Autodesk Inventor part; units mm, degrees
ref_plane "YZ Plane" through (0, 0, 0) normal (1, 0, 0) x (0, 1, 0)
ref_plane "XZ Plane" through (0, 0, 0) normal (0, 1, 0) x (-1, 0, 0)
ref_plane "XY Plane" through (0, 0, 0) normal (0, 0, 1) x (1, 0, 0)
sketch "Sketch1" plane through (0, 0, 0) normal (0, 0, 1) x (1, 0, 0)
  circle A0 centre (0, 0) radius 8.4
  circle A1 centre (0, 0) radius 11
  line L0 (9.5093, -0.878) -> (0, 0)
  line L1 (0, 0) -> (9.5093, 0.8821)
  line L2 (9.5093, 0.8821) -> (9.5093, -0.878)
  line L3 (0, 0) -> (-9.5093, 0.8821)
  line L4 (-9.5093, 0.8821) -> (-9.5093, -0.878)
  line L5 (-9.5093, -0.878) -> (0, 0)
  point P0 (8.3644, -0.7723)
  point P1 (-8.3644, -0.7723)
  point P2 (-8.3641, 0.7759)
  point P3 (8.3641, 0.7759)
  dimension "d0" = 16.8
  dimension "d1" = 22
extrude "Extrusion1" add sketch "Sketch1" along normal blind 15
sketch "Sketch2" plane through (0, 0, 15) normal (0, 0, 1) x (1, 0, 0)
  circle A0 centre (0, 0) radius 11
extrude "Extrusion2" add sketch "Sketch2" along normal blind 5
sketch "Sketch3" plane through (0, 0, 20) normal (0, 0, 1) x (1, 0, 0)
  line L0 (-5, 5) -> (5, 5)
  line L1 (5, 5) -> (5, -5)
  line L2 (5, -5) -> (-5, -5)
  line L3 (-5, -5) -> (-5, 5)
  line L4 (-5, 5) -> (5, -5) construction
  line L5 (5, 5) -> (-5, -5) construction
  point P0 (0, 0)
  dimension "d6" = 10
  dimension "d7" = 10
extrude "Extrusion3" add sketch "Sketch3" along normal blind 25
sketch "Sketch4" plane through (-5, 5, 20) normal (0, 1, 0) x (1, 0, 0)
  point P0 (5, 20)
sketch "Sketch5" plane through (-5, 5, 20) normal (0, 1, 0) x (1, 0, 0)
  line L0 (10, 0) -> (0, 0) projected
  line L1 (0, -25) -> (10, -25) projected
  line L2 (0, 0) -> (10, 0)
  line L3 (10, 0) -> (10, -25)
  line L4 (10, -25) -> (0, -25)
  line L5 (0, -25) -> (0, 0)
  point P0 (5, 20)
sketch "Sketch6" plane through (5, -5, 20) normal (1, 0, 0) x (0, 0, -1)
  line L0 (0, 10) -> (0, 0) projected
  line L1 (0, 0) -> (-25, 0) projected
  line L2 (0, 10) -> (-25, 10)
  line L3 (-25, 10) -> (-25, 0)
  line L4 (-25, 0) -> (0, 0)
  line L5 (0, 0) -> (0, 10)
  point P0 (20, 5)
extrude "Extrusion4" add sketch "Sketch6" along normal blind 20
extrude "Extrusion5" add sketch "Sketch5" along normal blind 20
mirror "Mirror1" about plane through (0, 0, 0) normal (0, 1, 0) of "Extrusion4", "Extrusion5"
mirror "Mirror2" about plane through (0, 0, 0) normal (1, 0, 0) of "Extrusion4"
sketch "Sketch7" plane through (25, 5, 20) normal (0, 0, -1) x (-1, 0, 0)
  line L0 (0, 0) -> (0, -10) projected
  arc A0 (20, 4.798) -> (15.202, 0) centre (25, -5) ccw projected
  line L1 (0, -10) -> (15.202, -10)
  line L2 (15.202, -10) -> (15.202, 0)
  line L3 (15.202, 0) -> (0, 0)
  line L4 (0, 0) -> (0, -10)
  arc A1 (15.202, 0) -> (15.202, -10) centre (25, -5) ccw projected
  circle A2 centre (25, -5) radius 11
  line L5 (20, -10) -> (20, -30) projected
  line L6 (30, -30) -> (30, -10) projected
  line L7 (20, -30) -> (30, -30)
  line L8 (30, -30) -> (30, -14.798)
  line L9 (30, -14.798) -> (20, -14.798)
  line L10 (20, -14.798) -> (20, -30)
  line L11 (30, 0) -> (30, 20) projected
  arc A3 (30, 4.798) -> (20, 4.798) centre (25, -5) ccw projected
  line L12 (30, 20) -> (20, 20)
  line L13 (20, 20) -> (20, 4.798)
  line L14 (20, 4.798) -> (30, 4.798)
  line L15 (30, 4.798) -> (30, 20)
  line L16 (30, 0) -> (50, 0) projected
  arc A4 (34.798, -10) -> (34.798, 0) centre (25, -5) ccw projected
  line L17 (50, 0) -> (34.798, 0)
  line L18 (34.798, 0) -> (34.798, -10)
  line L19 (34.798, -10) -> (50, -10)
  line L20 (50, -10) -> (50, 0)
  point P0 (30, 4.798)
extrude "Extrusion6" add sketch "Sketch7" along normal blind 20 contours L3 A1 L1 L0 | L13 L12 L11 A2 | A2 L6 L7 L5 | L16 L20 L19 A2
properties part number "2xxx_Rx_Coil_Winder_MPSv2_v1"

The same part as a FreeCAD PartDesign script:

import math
import FreeCAD as App
import Part
import Sketcher
Q = App.Units.Quantity


def add_polygon(sketch, points):
    """Adds a closed chain of lines whose ends are joined by coincident constraints."""
    first, n = sketch.GeometryCount, len(points)
    for a, b in zip(points, points[1:] + points[:1]):
        sketch.addGeometry(Part.LineSegment(App.Vector(*a, 0), App.Vector(*b, 0)), False)
    for i in range(n):
        sketch.addConstraint(Sketcher.Constraint("Coincident", first + i, 2, first + (i + 1) % n, 1))

doc = App.newDocument("Part")
body = doc.addObject("PartDesign::Body", "Body")

sketch1 = body.newObject("Sketcher::SketchObject", "Sketch")
sketch1.AttachmentSupport = (doc.getObject("XY_Plane"), [""])
sketch1.MapMode = "FlatFace"
sketch1.addGeometry(Part.Circle(App.Vector(0, 0, 0), App.Vector(0, 0, 1), 11), False)
sketch1.addGeometry(Part.ArcOfCircle(Part.Circle(App.Vector(0, 0, 0), App.Vector(0, 0, 1), 8.4), math.radians(5.299695), math.radians(174.700305)), False)
sketch1.addGeometry(Part.LineSegment(App.Vector(8.364092, 0.775868, 0), App.Vector(9.5093, 0.8821, 0)), False)
sketch1.addGeometry(Part.LineSegment(App.Vector(9.5093, 0.8821, 0), App.Vector(9.5093, -0.878, 0)), False)
sketch1.addGeometry(Part.LineSegment(App.Vector(9.5093, -0.878, 0), App.Vector(8.364423, -0.772293, 0)), False)
sketch1.addGeometry(Part.ArcOfCircle(Part.Circle(App.Vector(0, 0, 0), App.Vector(0, 0, 1), 8.4), math.radians(-174.724799), math.radians(-5.275201)), False)
sketch1.addGeometry(Part.LineSegment(App.Vector(-8.364423, -0.772293, 0), App.Vector(-9.5093, -0.878, 0)), False)
sketch1.addGeometry(Part.LineSegment(App.Vector(-9.5093, -0.878, 0), App.Vector(-9.5093, 0.8821, 0)), False)
sketch1.addGeometry(Part.LineSegment(App.Vector(-9.5093, 0.8821, 0), App.Vector(-8.364092, 0.775868, 0)), False)
sketch1.addConstraint(Sketcher.Constraint("Coincident", 1, 1, 2, 1))
sketch1.addConstraint(Sketcher.Constraint("Coincident", 2, 2, 3, 1))
sketch1.addConstraint(Sketcher.Constraint("Coincident", 3, 2, 4, 1))
sketch1.addConstraint(Sketcher.Constraint("Coincident", 4, 2, 5, 2))
sketch1.addConstraint(Sketcher.Constraint("Coincident", 5, 1, 6, 1))
sketch1.addConstraint(Sketcher.Constraint("Coincident", 6, 2, 7, 1))
sketch1.addConstraint(Sketcher.Constraint("Coincident", 7, 2, 8, 1))
sketch1.addConstraint(Sketcher.Constraint("Coincident", 8, 2, 1, 2))
sketch1.addConstraint(Sketcher.Constraint("Vertical", 3))
sketch1.addConstraint(Sketcher.Constraint("Vertical", 7))
sketch1.addConstraint(Sketcher.Constraint("Coincident", 0, 3, -1, 1))
sketch1.addConstraint(Sketcher.Constraint("Coincident", 1, 3, -1, 1))
sketch1.addConstraint(Sketcher.Constraint("Coincident", 5, 3, -1, 1))
sketch1.addConstraint(Sketcher.Constraint("Diameter", 0, Q("22 mm")))
sketch1.addConstraint(Sketcher.Constraint("Radius", 1, Q("8.4 mm")))
sketch1.addConstraint(Sketcher.Constraint("Radius", 5, Q("8.4 mm")))
sketch1.addConstraint(Sketcher.Constraint("DistanceY", 3, 2, 3, 1, Q("1.76 mm")))
sketch1.addConstraint(Sketcher.Constraint("DistanceY", 7, 1, 7, 2, Q("1.76 mm")))
sketch1.addConstraint(Sketcher.Constraint("DistanceX", -1, 1, 1, 1, Q("8.364 mm")))
sketch1.addConstraint(Sketcher.Constraint("DistanceY", -1, 1, 2, 2, Q("0.882 mm")))
sketch1.addConstraint(Sketcher.Constraint("DistanceY", 6, 2, -1, 1, Q("0.878 mm")))
sketch1.addConstraint(Sketcher.Constraint("DistanceX", 8, 2, -1, 1, Q("8.364 mm")))
sketch1.addConstraint(Sketcher.Constraint("Distance", 2, Q("1.1501 mm")))
sketch1.addConstraint(Sketcher.Constraint("Distance", 6, Q("1.1497 mm")))
sketch1.addConstraint(Sketcher.Constraint("DistanceX", -1, 1, 4, 2, Q("8.3644 mm")))
sketch1.addConstraint(Sketcher.Constraint("DistanceX", 5, 1, -1, 1, Q("8.3644 mm")))
pad1 = body.newObject("PartDesign::Pad", "Pad")
pad1.Profile = sketch1
pad1.Length = 15

sketch2 = body.newObject("Sketcher::SketchObject", "Sketch001")
sketch2.AttachmentSupport = (doc.getObject("XY_Plane"), [""])
sketch2.MapMode = "FlatFace"
sketch2.AttachmentOffset = App.Placement(App.Vector(0, 0, 15), App.Rotation())
sketch2.addGeometry(Part.Circle(App.Vector(0, 0, 0), App.Vector(0, 0, 1), 11), False)
sketch2.addConstraint(Sketcher.Constraint("Coincident", 0, 3, -1, 1))
sketch2.addConstraint(Sketcher.Constraint("Diameter", 0, Q("22 mm")))
pad2 = body.newObject("PartDesign::Pad", "Pad001")
pad2.Profile = sketch2
pad2.Length = 5

sketch3 = body.newObject("Sketcher::SketchObject", "Sketch002")
sketch3.AttachmentSupport = (doc.getObject("XY_Plane"), [""])
sketch3.MapMode = "FlatFace"
sketch3.AttachmentOffset = App.Placement(App.Vector(0, 0, 20), App.Rotation())
add_polygon(sketch3, [(5, 5), (-5, 5), (-5, -5), (5, -5)])
sketch3.addConstraint(Sketcher.Constraint("Horizontal", 0))
sketch3.addConstraint(Sketcher.Constraint("Vertical", 1))
sketch3.addConstraint(Sketcher.Constraint("Horizontal", 2))
sketch3.addConstraint(Sketcher.Constraint("Vertical", 3))
sketch3.addConstraint(Sketcher.Constraint("Symmetric", 0, 2, 2, 2, -1, 1))
sketch3.addConstraint(Sketcher.Constraint("Equal", 2, 1))
sketch3.addConstraint(Sketcher.Constraint("DistanceX", 0, 2, 0, 1, Q("10 mm")))
pad3 = body.newObject("PartDesign::Pad", "Pad002")
pad3.Profile = sketch3
pad3.Length = 25

sketch4 = body.newObject("Sketcher::SketchObject", "Sketch003")
sketch4.AttachmentSupport = (doc.getObject("YZ_Plane"), [""])
sketch4.MapMode = "FlatFace"
sketch4.AttachmentOffset = App.Placement(App.Vector(0, 0, 5), App.Rotation())
add_polygon(sketch4, [(-5, 20), (5, 20), (5, 45), (-5, 45)])
sketch4.addConstraint(Sketcher.Constraint("Horizontal", 0))
sketch4.addConstraint(Sketcher.Constraint("Vertical", 1))
sketch4.addConstraint(Sketcher.Constraint("Horizontal", 2))
sketch4.addConstraint(Sketcher.Constraint("Vertical", 3))
sketch4.addConstraint(Sketcher.Constraint("DistanceX", 0, 1, 0, 2, Q("10 mm")))
sketch4.addConstraint(Sketcher.Constraint("DistanceY", 1, 1, 1, 2, Q("25 mm")))
sketch4.addConstraint(Sketcher.Constraint("DistanceX", -1, 1, 0, 2, Q("5 mm")))
sketch4.addConstraint(Sketcher.Constraint("DistanceY", -1, 1, 0, 2, Q("20 mm")))
pad4 = body.newObject("PartDesign::Pad", "Pad003")
pad4.Profile = sketch4
pad4.Length = 20

sketch5 = body.newObject("Sketcher::SketchObject", "Sketch004")
sketch5.AttachmentSupport = (doc.getObject("XZ_Plane"), [""])
sketch5.MapMode = "FlatFace"
sketch5.AttachmentOffset = App.Placement(App.Vector(0, 0, -5), App.Rotation())
add_polygon(sketch5, [(5, 45), (5, 20), (-5, 20), (-5, 45)])
sketch5.addConstraint(Sketcher.Constraint("Vertical", 0))
sketch5.addConstraint(Sketcher.Constraint("Horizontal", 1))
sketch5.addConstraint(Sketcher.Constraint("Vertical", 2))
sketch5.addConstraint(Sketcher.Constraint("Horizontal", 3))
sketch5.addConstraint(Sketcher.Constraint("DistanceX", 1, 2, 1, 1, Q("10 mm")))
sketch5.addConstraint(Sketcher.Constraint("DistanceY", 0, 2, 0, 1, Q("25 mm")))
sketch5.addConstraint(Sketcher.Constraint("DistanceX", -1, 1, 0, 2, Q("5 mm")))
sketch5.addConstraint(Sketcher.Constraint("DistanceY", -1, 1, 0, 2, Q("20 mm")))
pad5 = body.newObject("PartDesign::Pad", "Pad004")
pad5.Profile = sketch5
pad5.Length = 20
pad5.Reversed = True
doc.recompute()

mirrored = body.newObject("PartDesign::Mirrored", "Mirrored")
mirrored.Originals = [pad4, pad5]
mirrored.MirrorPlane = (doc.getObject("XZ_Plane"), [""])
body.Tip = mirrored
doc.recompute()

mirrored2 = body.newObject("PartDesign::Mirrored", "Mirrored001")
mirrored2.Originals = [pad4]
mirrored2.MirrorPlane = (doc.getObject("YZ_Plane"), [""])
body.Tip = mirrored2

sketch6 = body.newObject("Sketcher::SketchObject", "Sketch005")
sketch6.AttachmentSupport = (doc.getObject("XY_Plane"), [""])
sketch6.MapMode = "FlatFace"
sketch6.AttachmentOffset = App.Placement(App.Vector(0, 0, 20), App.Rotation())
sketch6.addGeometry(Part.LineSegment(App.Vector(10, 5, 0), App.Vector(25, 5, 0)), False)
sketch6.addGeometry(Part.LineSegment(App.Vector(25, 5, 0), App.Vector(25, -5, 0)), False)
sketch6.addGeometry(Part.LineSegment(App.Vector(25, -5, 0), App.Vector(10, -5, 0)), False)
sketch6.addGeometry(Part.ArcOfCircle(Part.Circle(App.Vector(0, 0, 0), App.Vector(0, 0, 1), 11), math.radians(-27), math.radians(27)), False)
sketch6.addGeometry(Part.LineSegment(App.Vector(5, 25, 0), App.Vector(5, 10, 0)), False)
sketch6.addGeometry(Part.ArcOfCircle(Part.Circle(App.Vector(0, 0, 0), App.Vector(0, 0, 1), 11), math.radians(63), math.radians(117)), False)
sketch6.addGeometry(Part.LineSegment(App.Vector(-5, 10, 0), App.Vector(-5, 25, 0)), False)
sketch6.addGeometry(Part.LineSegment(App.Vector(-5, 25, 0), App.Vector(5, 25, 0)), False)
sketch6.addGeometry(Part.ArcOfCircle(Part.Circle(App.Vector(0, 0, 0), App.Vector(0, 0, 1), 11), math.radians(-117), math.radians(-63)), False)
sketch6.addGeometry(Part.LineSegment(App.Vector(5, -10, 0), App.Vector(5, -25, 0)), False)
sketch6.addGeometry(Part.LineSegment(App.Vector(5, -25, 0), App.Vector(-5, -25, 0)), False)
sketch6.addGeometry(Part.LineSegment(App.Vector(-5, -25, 0), App.Vector(-5, -10, 0)), False)
sketch6.addGeometry(Part.LineSegment(App.Vector(-25, 5, 0), App.Vector(-10, 5, 0)), False)
sketch6.addGeometry(Part.ArcOfCircle(Part.Circle(App.Vector(0, 0, 0), App.Vector(0, 0, 1), 11), math.radians(153), math.radians(207)), False)
sketch6.addGeometry(Part.LineSegment(App.Vector(-10, -5, 0), App.Vector(-25, -5, 0)), False)
sketch6.addGeometry(Part.LineSegment(App.Vector(-25, -5, 0), App.Vector(-25, 5, 0)), False)
sketch6.addConstraint(Sketcher.Constraint("Coincident", 0, 2, 1, 1))
sketch6.addConstraint(Sketcher.Constraint("Coincident", 1, 2, 2, 1))
sketch6.addConstraint(Sketcher.Constraint("Coincident", 2, 2, 3, 1))
sketch6.addConstraint(Sketcher.Constraint("Coincident", 3, 2, 0, 1))
sketch6.addConstraint(Sketcher.Constraint("Coincident", 4, 2, 5, 1))
sketch6.addConstraint(Sketcher.Constraint("Coincident", 5, 2, 6, 1))
sketch6.addConstraint(Sketcher.Constraint("Coincident", 6, 2, 7, 1))
sketch6.addConstraint(Sketcher.Constraint("Coincident", 7, 2, 4, 1))
sketch6.addConstraint(Sketcher.Constraint("Coincident", 8, 2, 9, 1))
sketch6.addConstraint(Sketcher.Constraint("Coincident", 9, 2, 10, 1))
sketch6.addConstraint(Sketcher.Constraint("Coincident", 10, 2, 11, 1))
sketch6.addConstraint(Sketcher.Constraint("Coincident", 11, 2, 8, 1))
sketch6.addConstraint(Sketcher.Constraint("Coincident", 12, 2, 13, 1))
sketch6.addConstraint(Sketcher.Constraint("Coincident", 13, 2, 14, 1))
sketch6.addConstraint(Sketcher.Constraint("Coincident", 14, 2, 15, 1))
sketch6.addConstraint(Sketcher.Constraint("Coincident", 15, 2, 12, 1))
sketch6.addConstraint(Sketcher.Constraint("Horizontal", 0))
sketch6.addConstraint(Sketcher.Constraint("Vertical", 1))
sketch6.addConstraint(Sketcher.Constraint("Horizontal", 2))
sketch6.addConstraint(Sketcher.Constraint("Vertical", 4))
sketch6.addConstraint(Sketcher.Constraint("Vertical", 6))
sketch6.addConstraint(Sketcher.Constraint("Horizontal", 7))
sketch6.addConstraint(Sketcher.Constraint("Vertical", 9))
sketch6.addConstraint(Sketcher.Constraint("Horizontal", 10))
sketch6.addConstraint(Sketcher.Constraint("Vertical", 11))
sketch6.addConstraint(Sketcher.Constraint("Horizontal", 12))
sketch6.addConstraint(Sketcher.Constraint("Horizontal", 14))
sketch6.addConstraint(Sketcher.Constraint("Vertical", 15))
sketch6.addConstraint(Sketcher.Constraint("Coincident", 3, 3, -1, 1))
sketch6.addConstraint(Sketcher.Constraint("Coincident", 5, 3, -1, 1))
sketch6.addConstraint(Sketcher.Constraint("Coincident", 8, 3, -1, 1))
sketch6.addConstraint(Sketcher.Constraint("Coincident", 13, 3, -1, 1))
sketch6.addConstraint(Sketcher.Constraint("Equal", 3, 5))
sketch6.addConstraint(Sketcher.Constraint("Equal", 5, 8))
sketch6.addConstraint(Sketcher.Constraint("Equal", 8, 13))
sketch6.addConstraint(Sketcher.Constraint("Symmetric", 6, 2, 9, 2, -1, 1))
sketch6.addConstraint(Sketcher.Constraint("Symmetric", 0, 2, 14, 2, -1, 1))
sketch6.addConstraint(Sketcher.Constraint("Horizontal", 4, 2, 5, 2))
sketch6.addConstraint(Sketcher.Constraint("Horizontal", 8, 2, 11, 2))
sketch6.addConstraint(Sketcher.Constraint("Horizontal", 3, 2, 12, 2))
sketch6.addConstraint(Sketcher.Constraint("Horizontal", 2, 2, 13, 2))
sketch6.addConstraint(Sketcher.Constraint("Equal", 10, 1))
sketch6.addConstraint(Sketcher.Constraint("Equal", 14, 4))
sketch6.addConstraint(Sketcher.Constraint("Radius", 3, Q("11 mm")))
sketch6.addConstraint(Sketcher.Constraint("DistanceX", 7, 1, 7, 2, Q("10 mm")))
sketch6.addConstraint(Sketcher.Constraint("DistanceX", -1, 1, 0, 2, Q("25 mm")))
pad6 = body.newObject("PartDesign::Pad", "Pad005")
pad6.Profile = sketch6
pad6.Length = 20
pad6.Reversed = True

doc.recompute()
